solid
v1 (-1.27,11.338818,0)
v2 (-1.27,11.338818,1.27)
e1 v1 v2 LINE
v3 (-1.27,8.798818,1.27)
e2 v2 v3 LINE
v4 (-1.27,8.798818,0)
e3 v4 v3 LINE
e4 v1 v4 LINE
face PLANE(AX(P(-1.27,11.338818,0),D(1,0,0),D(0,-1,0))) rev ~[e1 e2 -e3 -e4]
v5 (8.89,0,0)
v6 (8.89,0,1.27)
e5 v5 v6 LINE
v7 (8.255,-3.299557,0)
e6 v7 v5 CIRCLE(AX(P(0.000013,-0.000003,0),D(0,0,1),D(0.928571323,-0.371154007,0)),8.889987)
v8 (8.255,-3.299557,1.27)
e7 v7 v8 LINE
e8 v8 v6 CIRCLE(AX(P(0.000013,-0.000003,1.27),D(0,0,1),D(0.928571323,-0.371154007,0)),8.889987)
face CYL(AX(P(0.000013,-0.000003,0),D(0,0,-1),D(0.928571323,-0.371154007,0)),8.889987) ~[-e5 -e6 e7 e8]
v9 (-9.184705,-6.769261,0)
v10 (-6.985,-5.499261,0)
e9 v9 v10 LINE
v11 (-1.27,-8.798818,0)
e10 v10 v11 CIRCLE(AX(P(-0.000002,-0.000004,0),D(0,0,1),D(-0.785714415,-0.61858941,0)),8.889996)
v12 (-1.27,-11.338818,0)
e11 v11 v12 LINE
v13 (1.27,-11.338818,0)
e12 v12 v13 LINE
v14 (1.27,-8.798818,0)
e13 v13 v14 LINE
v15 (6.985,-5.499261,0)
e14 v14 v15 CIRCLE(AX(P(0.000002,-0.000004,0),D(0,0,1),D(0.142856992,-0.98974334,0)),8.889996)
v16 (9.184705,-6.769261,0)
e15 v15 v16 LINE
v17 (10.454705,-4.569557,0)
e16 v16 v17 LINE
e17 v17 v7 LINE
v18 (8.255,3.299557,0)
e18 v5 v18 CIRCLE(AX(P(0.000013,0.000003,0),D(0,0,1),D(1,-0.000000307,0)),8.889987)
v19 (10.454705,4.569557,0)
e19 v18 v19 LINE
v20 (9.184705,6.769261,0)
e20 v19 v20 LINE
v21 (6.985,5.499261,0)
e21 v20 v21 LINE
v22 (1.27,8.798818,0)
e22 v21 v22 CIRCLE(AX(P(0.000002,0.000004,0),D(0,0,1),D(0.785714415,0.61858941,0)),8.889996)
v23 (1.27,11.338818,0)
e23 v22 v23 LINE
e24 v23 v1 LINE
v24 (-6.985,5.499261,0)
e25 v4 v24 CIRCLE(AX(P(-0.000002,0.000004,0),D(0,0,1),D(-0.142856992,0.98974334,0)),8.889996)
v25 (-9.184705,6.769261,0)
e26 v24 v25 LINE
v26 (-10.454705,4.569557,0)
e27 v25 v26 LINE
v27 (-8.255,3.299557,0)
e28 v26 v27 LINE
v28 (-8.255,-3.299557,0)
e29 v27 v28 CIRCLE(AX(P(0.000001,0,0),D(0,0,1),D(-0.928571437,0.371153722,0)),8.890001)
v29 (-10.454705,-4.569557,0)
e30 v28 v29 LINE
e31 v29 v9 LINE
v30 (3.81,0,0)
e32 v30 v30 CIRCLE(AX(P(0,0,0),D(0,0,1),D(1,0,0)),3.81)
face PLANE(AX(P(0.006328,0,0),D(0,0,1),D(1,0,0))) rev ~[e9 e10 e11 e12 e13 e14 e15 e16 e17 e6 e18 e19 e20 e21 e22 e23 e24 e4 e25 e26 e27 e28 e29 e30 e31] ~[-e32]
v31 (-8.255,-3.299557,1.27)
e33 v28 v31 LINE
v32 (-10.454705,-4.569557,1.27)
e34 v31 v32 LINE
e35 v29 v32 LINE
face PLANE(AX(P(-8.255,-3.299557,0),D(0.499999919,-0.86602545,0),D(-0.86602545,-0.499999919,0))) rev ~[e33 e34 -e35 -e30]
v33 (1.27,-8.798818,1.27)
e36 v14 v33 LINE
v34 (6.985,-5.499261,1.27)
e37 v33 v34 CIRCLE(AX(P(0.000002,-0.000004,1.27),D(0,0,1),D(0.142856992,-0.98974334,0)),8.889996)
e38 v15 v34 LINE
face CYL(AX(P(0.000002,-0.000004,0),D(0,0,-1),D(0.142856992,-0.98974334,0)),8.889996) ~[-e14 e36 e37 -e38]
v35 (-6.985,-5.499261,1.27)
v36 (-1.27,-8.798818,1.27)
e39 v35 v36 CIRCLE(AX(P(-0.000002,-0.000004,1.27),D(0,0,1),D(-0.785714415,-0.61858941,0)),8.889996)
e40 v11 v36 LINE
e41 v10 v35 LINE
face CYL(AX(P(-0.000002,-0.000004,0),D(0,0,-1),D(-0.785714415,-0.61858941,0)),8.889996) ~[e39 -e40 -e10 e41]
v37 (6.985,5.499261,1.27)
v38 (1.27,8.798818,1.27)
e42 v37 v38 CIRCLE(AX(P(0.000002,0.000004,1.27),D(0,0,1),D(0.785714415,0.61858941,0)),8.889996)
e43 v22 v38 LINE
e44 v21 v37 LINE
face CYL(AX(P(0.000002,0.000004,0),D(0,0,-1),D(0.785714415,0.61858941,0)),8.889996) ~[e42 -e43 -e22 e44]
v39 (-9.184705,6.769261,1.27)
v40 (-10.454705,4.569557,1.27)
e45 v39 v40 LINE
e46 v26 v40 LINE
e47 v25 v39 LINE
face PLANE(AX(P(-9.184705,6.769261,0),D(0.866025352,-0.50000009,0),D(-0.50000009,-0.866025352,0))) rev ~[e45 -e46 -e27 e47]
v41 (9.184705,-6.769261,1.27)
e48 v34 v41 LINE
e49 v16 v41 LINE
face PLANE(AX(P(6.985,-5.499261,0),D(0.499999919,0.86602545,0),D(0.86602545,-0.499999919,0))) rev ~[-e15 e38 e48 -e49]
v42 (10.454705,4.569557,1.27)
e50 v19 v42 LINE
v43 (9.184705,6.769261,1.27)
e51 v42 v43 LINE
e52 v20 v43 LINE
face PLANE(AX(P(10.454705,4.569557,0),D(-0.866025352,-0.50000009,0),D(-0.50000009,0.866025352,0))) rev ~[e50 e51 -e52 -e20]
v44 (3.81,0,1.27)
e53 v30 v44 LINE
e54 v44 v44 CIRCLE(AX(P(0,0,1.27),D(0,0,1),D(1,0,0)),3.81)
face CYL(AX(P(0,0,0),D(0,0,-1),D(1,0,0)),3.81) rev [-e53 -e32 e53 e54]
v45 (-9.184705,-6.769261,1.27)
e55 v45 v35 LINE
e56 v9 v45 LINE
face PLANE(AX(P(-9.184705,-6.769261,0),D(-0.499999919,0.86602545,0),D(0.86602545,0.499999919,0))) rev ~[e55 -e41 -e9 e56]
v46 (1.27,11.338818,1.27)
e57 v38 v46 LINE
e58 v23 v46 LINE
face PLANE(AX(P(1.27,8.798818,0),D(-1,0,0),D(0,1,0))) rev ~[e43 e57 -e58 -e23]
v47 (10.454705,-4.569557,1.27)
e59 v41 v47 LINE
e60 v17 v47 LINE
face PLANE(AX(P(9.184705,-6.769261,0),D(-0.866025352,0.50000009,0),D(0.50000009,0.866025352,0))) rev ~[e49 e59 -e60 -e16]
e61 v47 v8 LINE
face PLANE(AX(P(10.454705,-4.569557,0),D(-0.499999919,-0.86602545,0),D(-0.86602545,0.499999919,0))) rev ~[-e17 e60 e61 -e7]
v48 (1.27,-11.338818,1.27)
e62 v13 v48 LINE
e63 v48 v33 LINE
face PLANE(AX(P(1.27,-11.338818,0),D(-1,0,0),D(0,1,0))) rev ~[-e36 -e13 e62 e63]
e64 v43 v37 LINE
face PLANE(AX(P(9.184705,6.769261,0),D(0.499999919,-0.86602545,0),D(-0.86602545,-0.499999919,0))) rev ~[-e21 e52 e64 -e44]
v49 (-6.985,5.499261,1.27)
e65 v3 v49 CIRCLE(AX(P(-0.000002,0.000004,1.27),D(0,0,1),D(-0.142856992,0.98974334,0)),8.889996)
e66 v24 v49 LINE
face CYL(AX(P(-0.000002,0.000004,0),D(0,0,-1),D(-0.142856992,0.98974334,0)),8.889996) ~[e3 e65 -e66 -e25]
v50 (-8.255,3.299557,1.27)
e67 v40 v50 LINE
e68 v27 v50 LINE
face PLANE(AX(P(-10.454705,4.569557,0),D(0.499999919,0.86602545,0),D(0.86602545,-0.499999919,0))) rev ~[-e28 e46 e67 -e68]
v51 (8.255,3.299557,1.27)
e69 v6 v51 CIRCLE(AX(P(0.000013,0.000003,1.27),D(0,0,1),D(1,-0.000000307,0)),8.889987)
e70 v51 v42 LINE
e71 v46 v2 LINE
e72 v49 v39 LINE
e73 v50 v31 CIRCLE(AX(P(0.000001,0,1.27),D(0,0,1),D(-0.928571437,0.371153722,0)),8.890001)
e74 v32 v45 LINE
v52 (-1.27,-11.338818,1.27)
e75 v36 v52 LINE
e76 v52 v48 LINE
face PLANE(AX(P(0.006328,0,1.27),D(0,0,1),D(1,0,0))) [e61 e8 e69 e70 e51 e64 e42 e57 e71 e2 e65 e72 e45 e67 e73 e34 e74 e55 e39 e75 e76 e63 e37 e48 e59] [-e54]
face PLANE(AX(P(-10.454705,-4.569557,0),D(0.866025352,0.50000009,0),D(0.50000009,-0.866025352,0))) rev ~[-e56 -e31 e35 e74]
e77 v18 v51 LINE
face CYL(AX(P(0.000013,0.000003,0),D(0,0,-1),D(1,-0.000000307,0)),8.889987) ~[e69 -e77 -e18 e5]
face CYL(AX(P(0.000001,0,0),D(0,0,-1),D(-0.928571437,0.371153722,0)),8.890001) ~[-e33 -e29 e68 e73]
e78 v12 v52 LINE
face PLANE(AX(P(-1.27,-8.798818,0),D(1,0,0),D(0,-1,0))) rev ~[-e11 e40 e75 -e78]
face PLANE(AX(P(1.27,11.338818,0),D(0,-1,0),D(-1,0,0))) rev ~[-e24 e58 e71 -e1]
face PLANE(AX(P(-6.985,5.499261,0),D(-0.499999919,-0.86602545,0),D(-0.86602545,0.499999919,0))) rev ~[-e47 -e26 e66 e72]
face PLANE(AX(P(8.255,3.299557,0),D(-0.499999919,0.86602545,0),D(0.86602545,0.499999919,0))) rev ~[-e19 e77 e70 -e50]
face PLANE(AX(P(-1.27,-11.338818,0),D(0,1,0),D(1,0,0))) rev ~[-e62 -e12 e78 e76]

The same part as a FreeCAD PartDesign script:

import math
import FreeCAD as App
import Part
import Sketcher

V = App.Vector
Q = App.Units.Quantity

doc = App.newDocument("Part")
body = doc.addObject("PartDesign::Body", "Body")

# Sketch on XY plane
sketch1 = doc.addObject("Sketcher::SketchObject", "Sketch")
body.addObject(sketch1)
sketch1.AttachmentSupport = (doc.XY_Plane, [""])
sketch1.MapMode = "FlatFace"
sketch1.addGeometry(Part.ArcOfCircle(Part.Circle(V(0, 0, 0), V(0, 0, 1), 8.9), math.radians(-22), math.radians(0)), False)
sketch1.addGeometry(Part.ArcOfCircle(Part.Circle(V(0, 0, 0), V(0, 0, 1), 8.9), math.radians(0), math.radians(22)), False)
sketch1.addGeometry(Part.LineSegment(V(8.3, 3.3, 0), V(10.5, 4.6, 0)), False)
sketch1.addGeometry(Part.LineSegment(V(10.5, 4.6, 0), V(9.2, 6.8, 0)), False)
sketch1.addGeometry(Part.LineSegment(V(9.2, 6.8, 0), V(7, 5.5, 0)), False)
sketch1.addGeometry(Part.ArcOfCircle(Part.Circle(V(0, 0, 0), V(0, 0, 1), 8.9), math.radians(38), math.radians(82)), False)
sketch1.addGeometry(Part.LineSegment(V(1.3, 8.8, 0), V(1.3, 11.3, 0)), False)
sketch1.addGeometry(Part.LineSegment(V(1.3, 11.3, 0), V(-1.3, 11.3, 0)), False)
sketch1.addGeometry(Part.LineSegment(V(-1.3, 11.3, 0), V(-1.3, 8.8, 0)), False)
sketch1.addGeometry(Part.ArcOfCircle(Part.Circle(V(0, 0, 0), V(0, 0, 1), 8.9), math.radians(98), math.radians(142)), False)
sketch1.addGeometry(Part.LineSegment(V(-7, 5.5, 0), V(-9.2, 6.8, 0)), False)
sketch1.addGeometry(Part.LineSegment(V(-9.2, 6.8, 0), V(-10.5, 4.6, 0)), False)
sketch1.addGeometry(Part.LineSegment(V(-10.5, 4.6, 0), V(-8.3, 3.3, 0)), False)
sketch1.addGeometry(Part.ArcOfCircle(Part.Circle(V(0, 0, 0), V(0, 0, 1), 8.9), math.radians(158), math.radians(202)), False)
sketch1.addGeometry(Part.LineSegment(V(-8.3, -3.3, 0), V(-10.5, -4.6, 0)), False)
sketch1.addGeometry(Part.LineSegment(V(-10.5, -4.6, 0), V(-9.2, -6.8, 0)), False)
sketch1.addGeometry(Part.LineSegment(V(-9.2, -6.8, 0), V(-7, -5.5, 0)), False)
sketch1.addGeometry(Part.ArcOfCircle(Part.Circle(V(0, 0, 0), V(0, 0, 1), 8.9), math.radians(-142), math.radians(-98)), False)
sketch1.addGeometry(Part.LineSegment(V(-1.3, -8.8, 0), V(-1.3, -11.3, 0)), False)
sketch1.addGeometry(Part.LineSegment(V(-1.3, -11.3, 0), V(1.3, -11.3, 0)), False)
sketch1.addGeometry(Part.LineSegment(V(1.3, -11.3, 0), V(1.3, -8.8, 0)), False)
sketch1.addGeometry(Part.ArcOfCircle(Part.Circle(V(0, 0, 0), V(0, 0, 1), 8.9), math.radians(-82), math.radians(-38)), False)
sketch1.addGeometry(Part.LineSegment(V(7, -5.5, 0), V(9.2, -6.8, 0)), False)
sketch1.addGeometry(Part.LineSegment(V(9.2, -6.8, 0), V(10.5, -4.6, 0)), False)
sketch1.addGeometry(Part.LineSegment(V(10.5, -4.6, 0), V(8.3, -3.3, 0)), False)
sketch1.addGeometry(Part.Circle(V(0, 0, 0), V(0, 0, 1), 3.8), False)
sketch1.addConstraint(Sketcher.Constraint("Tangent", 0, 2, 1, 1))
sketch1.addConstraint(Sketcher.Constraint("Coincident", 1, 2, 2, 1))
sketch1.addConstraint(Sketcher.Constraint("Coincident", 2, 2, 3, 1))
sketch1.addConstraint(Sketcher.Constraint("Coincident", 3, 2, 4, 1))
sketch1.addConstraint(Sketcher.Constraint("Coincident", 4, 2, 5, 1))
sketch1.addConstraint(Sketcher.Constraint("Coincident", 5, 2, 6, 1))
sketch1.addConstraint(Sketcher.Constraint("Coincident", 6, 2, 7, 1))
sketch1.addConstraint(Sketcher.Constraint("Coincident", 7, 2, 8, 1))
sketch1.addConstraint(Sketcher.Constraint("Coincident", 8, 2, 9, 1))
sketch1.addConstraint(Sketcher.Constraint("Coincident", 9, 2, 10, 1))
sketch1.addConstraint(Sketcher.Constraint("Coincident", 10, 2, 11, 1))
sketch1.addConstraint(Sketcher.Constraint("Coincident", 11, 2, 12, 1))
sketch1.addConstraint(Sketcher.Constraint("Coincident", 12, 2, 13, 1))
sketch1.addConstraint(Sketcher.Constraint("Coincident", 13, 2, 14, 1))
sketch1.addConstraint(Sketcher.Constraint("Coincident", 14, 2, 15, 1))
sketch1.addConstraint(Sketcher.Constraint("Coincident", 15, 2, 16, 1))
sketch1.addConstraint(Sketcher.Constraint("Coincident", 16, 2, 17, 1))
sketch1.addConstraint(Sketcher.Constraint("Coincident", 17, 2, 18, 1))
sketch1.addConstraint(Sketcher.Constraint("Coincident", 18, 2, 19, 1))
sketch1.addConstraint(Sketcher.Constraint("Coincident", 19, 2, 20, 1))
sketch1.addConstraint(Sketcher.Constraint("Coincident", 20, 2, 21, 1))
sketch1.addConstraint(Sketcher.Constraint("Coincident", 21, 2, 22, 1))
sketch1.addConstraint(Sketcher.Constraint("Coincident", 22, 2, 23, 1))
sketch1.addConstraint(Sketcher.Constraint("Coincident", 23, 2, 24, 1))
sketch1.addConstraint(Sketcher.Constraint("Coincident", 24, 2, 0, 1))
sketch1.addConstraint(Sketcher.Constraint("Vertical", 6))
sketch1.addConstraint(Sketcher.Constraint("Horizontal", 7))
sketch1.addConstraint(Sketcher.Constraint("Vertical", 8))
sketch1.addConstraint(Sketcher.Constraint("Vertical", 18))
sketch1.addConstraint(Sketcher.Constraint("Horizontal", 19))
sketch1.addConstraint(Sketcher.Constraint("Vertical", 20))
sketch1.addConstraint(Sketcher.Constraint("Coincident", 5, 3, -1, 1))
sketch1.addConstraint(Sketcher.Constraint("Coincident", 9, 3, -1, 1))
sketch1.addConstraint(Sketcher.Constraint("Coincident", 13, 3, -1, 1))
sketch1.addConstraint(Sketcher.Constraint("Coincident", 17, 3, -1, 1))
sketch1.addConstraint(Sketcher.Constraint("Coincident", 21, 3, -1, 1))
sketch1.addConstraint(Sketcher.Constraint("Coincident", 25, 3, -1, 1))
sketch1.addConstraint(Sketcher.Constraint("Equal", 0, 1))
sketch1.addConstraint(Sketcher.Constraint("Equal", 5, 9))
sketch1.addConstraint(Sketcher.Constraint("Equal", 9, 17))
sketch1.addConstraint(Sketcher.Constraint("Equal", 17, 21))
sketch1.addConstraint(Sketcher.Constraint("Symmetric", 1, 2, 13, 2, -1, 1))
sketch1.addConstraint(Sketcher.Constraint("Symmetric", 2, 2, 14, 2, -1, 1))
sketch1.addConstraint(Sketcher.Constraint("Symmetric", 3, 2, 15, 2, -1, 1))
sketch1.addConstraint(Sketcher.Constraint("Symmetric", 6, 2, 18, 2, -1, 1))
sketch1.addConstraint(Sketcher.Constraint("Symmetric", 10, 2, 22, 2, -1, 1))
sketch1.addConstraint(Sketcher.Constraint("Symmetric", 11, 2, 23, 2, -1, 1))
sketch1.addConstraint(Sketcher.Constraint("Symmetric", 12, 2, 24, 2, -1, 1))
sketch1.addConstraint(Sketcher.Constraint("Symmetric", 3, 2, 10, 2, -2))
sketch1.addConstraint(Sketcher.Constraint("Symmetric", 2, 2, 11, 2, -2))
sketch1.addConstraint(Sketcher.Constraint("PointOnObject", 0, 2, -1))
sketch1.addConstraint(Sketcher.Constraint("Perpendicular", 2, 3))
sketch1.addConstraint(Sketcher.Constraint("Perpendicular", 3, 4))
sketch1.addConstraint(Sketcher.Constraint("Perpendicular", 10, 11))
sketch1.addConstraint(Sketcher.Constraint("Perpendicular", 11, 12))
sketch1.addConstraint(Sketcher.Constraint("Perpendicular", 15, 16))
sketch1.addConstraint(Sketcher.Constraint("Parallel", 12, 22))
sketch1.addConstraint(Sketcher.Constraint("Horizontal", 5, 2, 8, 2))
sketch1.addConstraint(Sketcher.Constraint("Horizontal", 17, 2, 20, 2))
sketch1.addConstraint(Sketcher.Constraint("Equal", 19, 6))
sketch1.addConstraint(Sketcher.Constraint("Equal", 2, 3))
sketch1.addConstraint(Sketcher.Constraint("Equal", 3, 4))
sketch1.addConstraint(Sketcher.Constraint("Diameter", 25, Q("0.3 in")))
sketch1.addConstraint(Sketcher.Constraint("Radius", 5, Q("0.3499998 in")))
sketch1.addConstraint(Sketcher.Constraint("Radius", 13, Q("0.35 in")))
sketch1.addConstraint(Sketcher.Constraint("DistanceX", 7, 2, 7, 1, Q("0.1 in")))
sketch1.addConstraint(Sketcher.Constraint("Angle", 2, Q("29.999995 deg")))
sketch1.addConstraint(Sketcher.Constraint("Distance", 2, Q("0.1 in")))
sketch1.addConstraint(Sketcher.Constraint("DistanceX", -1, 1, 0, 2, Q("0.35 in")))
pad1 = doc.addObject("PartDesign::Pad", "Pad")
body.addObject(pad1)
pad1.Profile = sketch1
pad1.Length = Q("0.05 in")

doc.recompute()
